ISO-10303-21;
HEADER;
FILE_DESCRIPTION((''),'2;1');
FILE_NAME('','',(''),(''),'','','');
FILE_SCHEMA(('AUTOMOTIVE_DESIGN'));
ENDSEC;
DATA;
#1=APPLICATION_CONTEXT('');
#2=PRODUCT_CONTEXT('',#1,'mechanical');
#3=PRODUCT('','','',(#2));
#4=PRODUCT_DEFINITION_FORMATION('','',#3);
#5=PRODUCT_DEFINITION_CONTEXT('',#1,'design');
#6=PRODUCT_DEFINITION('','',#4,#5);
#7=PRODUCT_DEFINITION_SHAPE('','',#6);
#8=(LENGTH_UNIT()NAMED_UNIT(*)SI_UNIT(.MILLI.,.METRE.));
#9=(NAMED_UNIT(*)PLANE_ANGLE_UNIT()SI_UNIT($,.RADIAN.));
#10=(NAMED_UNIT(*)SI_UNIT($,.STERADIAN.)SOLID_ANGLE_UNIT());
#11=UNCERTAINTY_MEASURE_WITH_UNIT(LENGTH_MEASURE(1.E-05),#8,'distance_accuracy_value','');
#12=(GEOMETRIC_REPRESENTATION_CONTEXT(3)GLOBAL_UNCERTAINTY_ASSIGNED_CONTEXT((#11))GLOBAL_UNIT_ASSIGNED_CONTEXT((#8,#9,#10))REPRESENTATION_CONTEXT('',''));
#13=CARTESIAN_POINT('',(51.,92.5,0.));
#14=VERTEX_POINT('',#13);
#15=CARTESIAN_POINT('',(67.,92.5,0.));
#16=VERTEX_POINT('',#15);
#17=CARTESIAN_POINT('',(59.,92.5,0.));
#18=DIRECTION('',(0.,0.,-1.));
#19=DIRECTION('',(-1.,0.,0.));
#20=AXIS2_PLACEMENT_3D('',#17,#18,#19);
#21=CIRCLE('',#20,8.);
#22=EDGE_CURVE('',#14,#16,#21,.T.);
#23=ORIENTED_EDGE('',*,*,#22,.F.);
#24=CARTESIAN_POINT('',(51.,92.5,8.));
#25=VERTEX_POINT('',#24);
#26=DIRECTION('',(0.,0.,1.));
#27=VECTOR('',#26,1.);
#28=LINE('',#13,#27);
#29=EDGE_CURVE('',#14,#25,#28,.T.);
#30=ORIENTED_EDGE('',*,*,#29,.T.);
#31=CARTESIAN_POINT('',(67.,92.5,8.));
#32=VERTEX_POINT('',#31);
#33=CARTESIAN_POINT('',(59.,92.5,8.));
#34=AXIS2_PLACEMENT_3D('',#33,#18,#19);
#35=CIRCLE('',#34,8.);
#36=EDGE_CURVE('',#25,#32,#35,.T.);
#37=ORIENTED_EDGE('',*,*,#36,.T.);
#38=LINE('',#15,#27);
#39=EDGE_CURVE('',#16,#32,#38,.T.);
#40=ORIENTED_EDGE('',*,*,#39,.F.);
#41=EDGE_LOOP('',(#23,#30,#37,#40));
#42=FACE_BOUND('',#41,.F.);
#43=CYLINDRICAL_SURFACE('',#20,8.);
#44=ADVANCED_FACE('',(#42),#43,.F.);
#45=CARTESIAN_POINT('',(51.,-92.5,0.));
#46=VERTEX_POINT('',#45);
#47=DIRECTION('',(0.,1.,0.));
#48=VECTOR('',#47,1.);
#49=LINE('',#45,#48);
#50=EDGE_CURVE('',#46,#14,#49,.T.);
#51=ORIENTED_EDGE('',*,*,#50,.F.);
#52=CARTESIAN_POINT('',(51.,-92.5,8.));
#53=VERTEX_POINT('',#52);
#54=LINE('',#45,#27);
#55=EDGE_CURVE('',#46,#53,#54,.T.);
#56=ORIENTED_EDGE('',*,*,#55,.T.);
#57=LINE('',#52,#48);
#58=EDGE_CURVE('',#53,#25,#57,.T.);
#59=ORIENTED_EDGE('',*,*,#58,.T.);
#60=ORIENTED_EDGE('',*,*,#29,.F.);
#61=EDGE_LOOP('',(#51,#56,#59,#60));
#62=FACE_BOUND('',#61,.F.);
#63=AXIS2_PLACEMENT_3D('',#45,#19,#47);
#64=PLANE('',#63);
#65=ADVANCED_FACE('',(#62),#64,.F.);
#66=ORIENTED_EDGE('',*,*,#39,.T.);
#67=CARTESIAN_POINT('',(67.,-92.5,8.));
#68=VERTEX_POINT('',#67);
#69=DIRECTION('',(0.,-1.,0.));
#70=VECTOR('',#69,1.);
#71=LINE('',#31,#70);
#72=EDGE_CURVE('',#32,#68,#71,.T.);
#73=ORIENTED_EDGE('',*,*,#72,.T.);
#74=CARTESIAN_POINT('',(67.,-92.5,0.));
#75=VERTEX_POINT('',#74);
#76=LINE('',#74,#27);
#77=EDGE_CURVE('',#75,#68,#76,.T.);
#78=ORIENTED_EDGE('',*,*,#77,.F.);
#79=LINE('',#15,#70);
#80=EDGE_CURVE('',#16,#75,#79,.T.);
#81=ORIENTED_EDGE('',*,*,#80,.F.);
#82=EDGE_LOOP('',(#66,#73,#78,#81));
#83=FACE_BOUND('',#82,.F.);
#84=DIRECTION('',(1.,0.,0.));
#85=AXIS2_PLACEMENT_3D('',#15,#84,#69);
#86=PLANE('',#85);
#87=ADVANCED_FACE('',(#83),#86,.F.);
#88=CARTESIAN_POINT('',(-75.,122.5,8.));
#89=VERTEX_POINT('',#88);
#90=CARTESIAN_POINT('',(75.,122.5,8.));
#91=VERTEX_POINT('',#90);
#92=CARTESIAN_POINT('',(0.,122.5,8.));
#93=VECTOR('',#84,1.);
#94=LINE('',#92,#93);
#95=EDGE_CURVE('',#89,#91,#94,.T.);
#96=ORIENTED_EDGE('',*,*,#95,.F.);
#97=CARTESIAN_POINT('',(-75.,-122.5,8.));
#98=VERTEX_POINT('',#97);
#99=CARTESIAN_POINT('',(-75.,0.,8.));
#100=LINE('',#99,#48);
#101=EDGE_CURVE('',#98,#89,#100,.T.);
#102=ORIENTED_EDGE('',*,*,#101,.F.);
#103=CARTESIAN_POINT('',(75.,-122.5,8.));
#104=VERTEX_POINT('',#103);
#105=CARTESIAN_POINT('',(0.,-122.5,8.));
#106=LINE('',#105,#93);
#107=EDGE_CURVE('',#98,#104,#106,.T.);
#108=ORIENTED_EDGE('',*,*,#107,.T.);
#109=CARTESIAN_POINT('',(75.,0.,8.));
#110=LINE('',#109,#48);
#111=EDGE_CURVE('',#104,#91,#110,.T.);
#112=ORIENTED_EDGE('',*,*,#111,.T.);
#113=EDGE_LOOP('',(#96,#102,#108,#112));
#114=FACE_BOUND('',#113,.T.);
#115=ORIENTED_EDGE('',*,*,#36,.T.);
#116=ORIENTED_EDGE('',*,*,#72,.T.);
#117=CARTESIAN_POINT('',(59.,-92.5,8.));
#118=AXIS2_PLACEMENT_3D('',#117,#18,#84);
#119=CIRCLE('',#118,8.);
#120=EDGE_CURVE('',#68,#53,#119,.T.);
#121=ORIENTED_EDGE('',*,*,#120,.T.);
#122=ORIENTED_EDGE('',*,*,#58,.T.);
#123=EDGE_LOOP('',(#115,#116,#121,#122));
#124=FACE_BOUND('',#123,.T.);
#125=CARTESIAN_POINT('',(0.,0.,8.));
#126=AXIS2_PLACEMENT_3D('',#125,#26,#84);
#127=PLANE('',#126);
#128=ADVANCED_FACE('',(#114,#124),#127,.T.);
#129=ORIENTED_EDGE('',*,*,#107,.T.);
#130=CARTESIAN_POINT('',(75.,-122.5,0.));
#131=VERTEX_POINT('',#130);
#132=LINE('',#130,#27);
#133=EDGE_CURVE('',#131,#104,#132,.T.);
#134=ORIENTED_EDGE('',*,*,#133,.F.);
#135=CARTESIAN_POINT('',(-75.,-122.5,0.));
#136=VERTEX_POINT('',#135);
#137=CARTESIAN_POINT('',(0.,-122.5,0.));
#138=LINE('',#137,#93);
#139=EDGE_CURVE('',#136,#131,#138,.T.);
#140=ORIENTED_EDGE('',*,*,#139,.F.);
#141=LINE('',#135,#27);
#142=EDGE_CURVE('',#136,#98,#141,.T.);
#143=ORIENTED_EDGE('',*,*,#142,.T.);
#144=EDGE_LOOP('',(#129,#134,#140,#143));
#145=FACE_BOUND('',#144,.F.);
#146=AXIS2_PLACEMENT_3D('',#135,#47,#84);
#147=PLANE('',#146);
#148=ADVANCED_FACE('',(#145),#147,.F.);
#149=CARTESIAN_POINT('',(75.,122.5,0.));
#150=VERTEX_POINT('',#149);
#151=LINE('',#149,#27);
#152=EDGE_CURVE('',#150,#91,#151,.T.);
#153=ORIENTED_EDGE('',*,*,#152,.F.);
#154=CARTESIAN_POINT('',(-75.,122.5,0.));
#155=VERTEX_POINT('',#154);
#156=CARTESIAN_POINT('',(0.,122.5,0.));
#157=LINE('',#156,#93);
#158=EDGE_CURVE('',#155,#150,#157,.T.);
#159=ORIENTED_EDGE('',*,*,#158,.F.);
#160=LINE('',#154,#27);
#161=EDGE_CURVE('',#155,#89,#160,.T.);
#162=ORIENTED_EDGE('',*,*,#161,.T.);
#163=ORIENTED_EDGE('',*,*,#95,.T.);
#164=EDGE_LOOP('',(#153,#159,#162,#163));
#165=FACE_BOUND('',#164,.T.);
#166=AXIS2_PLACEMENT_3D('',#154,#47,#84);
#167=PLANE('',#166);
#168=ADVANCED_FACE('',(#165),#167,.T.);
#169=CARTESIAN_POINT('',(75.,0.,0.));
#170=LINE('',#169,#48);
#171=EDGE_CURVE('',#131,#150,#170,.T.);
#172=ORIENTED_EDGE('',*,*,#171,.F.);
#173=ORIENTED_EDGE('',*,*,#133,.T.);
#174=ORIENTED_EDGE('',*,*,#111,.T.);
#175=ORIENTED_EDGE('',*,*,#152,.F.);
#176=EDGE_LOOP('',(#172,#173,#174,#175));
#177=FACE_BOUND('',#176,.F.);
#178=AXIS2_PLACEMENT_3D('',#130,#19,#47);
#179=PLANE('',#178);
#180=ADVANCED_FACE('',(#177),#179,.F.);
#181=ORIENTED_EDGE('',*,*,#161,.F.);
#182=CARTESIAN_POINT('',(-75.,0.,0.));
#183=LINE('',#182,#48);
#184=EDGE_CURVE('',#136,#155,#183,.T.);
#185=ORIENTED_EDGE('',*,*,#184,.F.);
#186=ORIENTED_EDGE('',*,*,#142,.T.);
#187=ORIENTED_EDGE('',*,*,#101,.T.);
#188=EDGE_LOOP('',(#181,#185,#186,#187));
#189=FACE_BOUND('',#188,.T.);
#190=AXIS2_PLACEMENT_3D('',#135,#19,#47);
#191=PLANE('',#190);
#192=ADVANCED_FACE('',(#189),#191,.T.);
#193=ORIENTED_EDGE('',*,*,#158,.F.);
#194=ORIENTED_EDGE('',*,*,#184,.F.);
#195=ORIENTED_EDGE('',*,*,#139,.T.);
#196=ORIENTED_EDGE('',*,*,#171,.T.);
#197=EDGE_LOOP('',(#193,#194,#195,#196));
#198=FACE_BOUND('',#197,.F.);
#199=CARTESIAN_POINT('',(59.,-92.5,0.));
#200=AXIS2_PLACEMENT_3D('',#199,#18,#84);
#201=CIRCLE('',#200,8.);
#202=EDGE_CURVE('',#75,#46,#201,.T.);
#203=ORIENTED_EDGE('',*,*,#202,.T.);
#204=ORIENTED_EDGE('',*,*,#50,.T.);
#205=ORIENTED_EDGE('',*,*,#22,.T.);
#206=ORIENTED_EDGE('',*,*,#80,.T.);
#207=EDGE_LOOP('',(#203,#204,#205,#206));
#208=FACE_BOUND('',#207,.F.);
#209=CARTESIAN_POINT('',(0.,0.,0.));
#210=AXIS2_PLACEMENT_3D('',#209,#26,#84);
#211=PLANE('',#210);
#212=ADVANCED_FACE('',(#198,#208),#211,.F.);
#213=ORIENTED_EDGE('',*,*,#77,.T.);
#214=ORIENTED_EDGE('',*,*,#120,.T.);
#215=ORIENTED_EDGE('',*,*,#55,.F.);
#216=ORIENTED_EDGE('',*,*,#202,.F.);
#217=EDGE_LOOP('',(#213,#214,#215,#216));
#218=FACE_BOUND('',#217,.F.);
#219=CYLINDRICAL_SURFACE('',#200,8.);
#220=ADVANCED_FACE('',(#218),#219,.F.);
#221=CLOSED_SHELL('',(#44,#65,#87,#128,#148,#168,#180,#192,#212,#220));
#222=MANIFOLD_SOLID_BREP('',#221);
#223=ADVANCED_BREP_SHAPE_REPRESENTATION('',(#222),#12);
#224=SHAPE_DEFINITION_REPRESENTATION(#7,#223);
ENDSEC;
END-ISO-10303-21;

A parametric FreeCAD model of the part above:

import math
import FreeCAD as App
import Part
import Sketcher

doc = App.newDocument("Part")
body = doc.addObject("PartDesign::Body", "Body")

# Sketch on XY plane
sketch1 = body.newObject("Sketcher::SketchObject", "Sketch")
sketch1.AttachmentSupport = (doc.getObject("XY_Plane"), [""])
sketch1.MapMode = "FlatFace"
sketch1.addGeometry(Part.LineSegment(App.Vector(-75, 122.5, 0), App.Vector(-75, -122.5, 0)), False)
sketch1.addGeometry(Part.LineSegment(App.Vector(-75, -122.5, 0), App.Vector(75, -122.5, 0)), False)
sketch1.addGeometry(Part.LineSegment(App.Vector(75, -122.5, 0), App.Vector(75, 122.5, 0)), False)
sketch1.addGeometry(Part.LineSegment(App.Vector(75, 122.5, 0), App.Vector(-75, 122.5, 0)), False)
sketch1.addGeometry(Part.ArcOfCircle(Part.Circle(App.Vector(59, -92.5, 0), App.Vector(0, 0, 1), 8), math.radians(180), math.radians(360)), False)
sketch1.addGeometry(Part.LineSegment(App.Vector(51, -92.5, 0), App.Vector(51, 92.5, 0)), False)
sketch1.addGeometry(Part.ArcOfCircle(Part.Circle(App.Vector(59, 92.5, 0), App.Vector(0, 0, 1), 8), math.radians(0), math.radians(180)), False)
sketch1.addGeometry(Part.LineSegment(App.Vector(67, 92.5, 0), App.Vector(67, -92.5, 0)), False)
sketch1.addConstraint(Sketcher.Constraint("Coincident", 0, 2, 1, 1))
sketch1.addConstraint(Sketcher.Constraint("Coincident", 1, 2, 2, 1))
sketch1.addConstraint(Sketcher.Constraint("Coincident", 2, 2, 3, 1))
sketch1.addConstraint(Sketcher.Constraint("Coincident", 3, 2, 0, 1))
sketch1.addConstraint(Sketcher.Constraint("Tangent", 4, 1, 5, 1))
sketch1.addConstraint(Sketcher.Constraint("Tangent", 5, 2, 6, 2))
sketch1.addConstraint(Sketcher.Constraint("Tangent", 6, 1, 7, 1))
sketch1.addConstraint(Sketcher.Constraint("Tangent", 7, 2, 4, 2))
sketch1.addConstraint(Sketcher.Constraint("Vertical", 0))
sketch1.addConstraint(Sketcher.Constraint("Horizontal", 1))
sketch1.addConstraint(Sketcher.Constraint("Vertical", 2))
sketch1.addConstraint(Sketcher.Constraint("Horizontal", 3))
sketch1.addConstraint(Sketcher.Constraint("Vertical", 5))
sketch1.addConstraint(Sketcher.Constraint("Vertical", 7))
sketch1.addConstraint(Sketcher.Constraint("Symmetric", 0, 2, 2, 2, -1, 1))
sketch1.addConstraint(Sketcher.Constraint("Radius", 4, 8.0))
sketch1.addConstraint(Sketcher.Constraint("DistanceX", 1, 1, 1, 2, 150.0))
sketch1.addConstraint(Sketcher.Constraint("DistanceY", 0, 2, 0, 1, 245.0))
sketch1.addConstraint(Sketcher.Constraint("DistanceY", 5, 1, 5, 2, 185.0))
sketch1.addConstraint(Sketcher.Constraint("DistanceX", -1, 1, 4, 3, 59.0))
sketch1.addConstraint(Sketcher.Constraint("DistanceY", 0, 2, 4, 3, 30.0))
pad1 = body.newObject("PartDesign::Pad", "Pad")
pad1.Profile = sketch1
pad1.Length = 8

doc.recompute()
